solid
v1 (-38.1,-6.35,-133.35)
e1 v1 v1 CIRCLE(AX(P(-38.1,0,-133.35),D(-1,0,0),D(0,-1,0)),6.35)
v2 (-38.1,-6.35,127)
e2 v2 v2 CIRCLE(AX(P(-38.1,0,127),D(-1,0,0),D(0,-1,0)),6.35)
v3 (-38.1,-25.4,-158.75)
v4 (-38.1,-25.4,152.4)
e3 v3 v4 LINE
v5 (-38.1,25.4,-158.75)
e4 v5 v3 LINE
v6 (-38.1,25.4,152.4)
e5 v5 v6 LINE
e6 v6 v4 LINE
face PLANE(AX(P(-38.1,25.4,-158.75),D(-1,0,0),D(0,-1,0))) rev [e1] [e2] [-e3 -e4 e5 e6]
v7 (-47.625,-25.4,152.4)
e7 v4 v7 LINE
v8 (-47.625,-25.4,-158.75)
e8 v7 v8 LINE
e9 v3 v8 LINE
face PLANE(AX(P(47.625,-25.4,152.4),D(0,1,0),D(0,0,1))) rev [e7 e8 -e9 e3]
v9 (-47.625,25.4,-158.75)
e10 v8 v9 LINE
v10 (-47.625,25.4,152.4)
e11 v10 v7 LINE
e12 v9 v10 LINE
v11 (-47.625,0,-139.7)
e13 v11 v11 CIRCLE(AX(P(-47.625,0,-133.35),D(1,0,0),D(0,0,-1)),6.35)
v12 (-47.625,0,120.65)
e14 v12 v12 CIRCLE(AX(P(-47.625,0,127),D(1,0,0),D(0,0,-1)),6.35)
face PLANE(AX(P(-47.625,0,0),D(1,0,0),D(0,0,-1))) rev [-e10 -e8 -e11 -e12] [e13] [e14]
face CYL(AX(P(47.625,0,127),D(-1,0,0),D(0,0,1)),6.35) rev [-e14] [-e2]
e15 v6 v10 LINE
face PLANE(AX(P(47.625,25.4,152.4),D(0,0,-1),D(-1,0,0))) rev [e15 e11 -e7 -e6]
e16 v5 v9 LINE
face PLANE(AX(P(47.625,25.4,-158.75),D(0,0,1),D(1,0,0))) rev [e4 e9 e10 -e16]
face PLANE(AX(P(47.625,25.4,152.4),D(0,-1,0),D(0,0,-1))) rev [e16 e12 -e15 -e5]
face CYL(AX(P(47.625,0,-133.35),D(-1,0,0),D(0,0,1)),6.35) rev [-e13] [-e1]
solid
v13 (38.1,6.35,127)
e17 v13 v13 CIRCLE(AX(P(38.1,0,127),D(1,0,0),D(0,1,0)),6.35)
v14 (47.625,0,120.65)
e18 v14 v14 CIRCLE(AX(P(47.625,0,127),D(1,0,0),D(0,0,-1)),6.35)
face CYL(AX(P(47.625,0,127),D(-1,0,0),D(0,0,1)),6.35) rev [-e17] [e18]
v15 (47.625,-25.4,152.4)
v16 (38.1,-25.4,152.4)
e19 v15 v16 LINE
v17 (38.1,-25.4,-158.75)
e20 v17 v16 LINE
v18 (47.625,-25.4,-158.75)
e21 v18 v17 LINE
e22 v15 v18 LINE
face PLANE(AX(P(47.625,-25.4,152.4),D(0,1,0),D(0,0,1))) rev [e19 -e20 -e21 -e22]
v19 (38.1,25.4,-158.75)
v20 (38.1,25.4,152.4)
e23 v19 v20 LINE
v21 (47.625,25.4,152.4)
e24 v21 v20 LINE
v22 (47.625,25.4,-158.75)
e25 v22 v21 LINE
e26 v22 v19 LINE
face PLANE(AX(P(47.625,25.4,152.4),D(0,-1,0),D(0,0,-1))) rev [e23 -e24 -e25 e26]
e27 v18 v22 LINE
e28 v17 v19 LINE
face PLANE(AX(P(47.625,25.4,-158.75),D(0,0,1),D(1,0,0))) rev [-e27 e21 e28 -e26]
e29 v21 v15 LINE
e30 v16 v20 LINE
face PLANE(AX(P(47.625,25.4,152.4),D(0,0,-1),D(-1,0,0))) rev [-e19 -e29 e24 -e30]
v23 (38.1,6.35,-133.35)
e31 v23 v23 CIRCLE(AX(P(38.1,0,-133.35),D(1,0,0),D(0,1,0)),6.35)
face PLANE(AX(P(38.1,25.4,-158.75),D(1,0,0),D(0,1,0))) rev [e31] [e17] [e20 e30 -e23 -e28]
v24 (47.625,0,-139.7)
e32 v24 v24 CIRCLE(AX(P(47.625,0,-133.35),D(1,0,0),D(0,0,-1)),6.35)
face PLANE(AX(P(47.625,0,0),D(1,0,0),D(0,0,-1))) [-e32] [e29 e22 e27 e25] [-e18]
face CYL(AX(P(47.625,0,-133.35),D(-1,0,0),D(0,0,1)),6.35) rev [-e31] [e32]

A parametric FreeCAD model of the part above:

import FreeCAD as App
import Part
import Sketcher
Q = App.Units.Quantity


def add_polygon(sketch, points):
    """Adds a closed chain of lines whose ends are joined by coincident constraints."""
    first, n = sketch.GeometryCount, len(points)
    for a, b in zip(points, points[1:] + points[:1]):
        sketch.addGeometry(Part.LineSegment(App.Vector(*a, 0), App.Vector(*b, 0)), False)
    for i in range(n):
        sketch.addConstraint(Sketcher.Constraint("Coincident", first + i, 2, first + (i + 1) % n, 1))

doc = App.newDocument("Part")
body = doc.addObject("PartDesign::Body", "Body")
body.AllowCompound = True

# Sketch on YZ plane
sketch1 = body.newObject("Sketcher::SketchObject", "Sketch")
sketch1.AttachmentSupport = (doc.getObject("YZ_Plane"), [""])
sketch1.MapMode = "FlatFace"
add_polygon(sketch1, [(25.4, 152.4), (-25.4, 152.4), (-25.4, -158.75), (25.4, -158.75)])  # lines 0-3
sketch1.addGeometry(Part.Circle(App.Vector(0, 127, 0), App.Vector(0, 0, 1), 6.35), False)  # 4
sketch1.addGeometry(Part.Circle(App.Vector(0, -133.35, 0), App.Vector(0, 0, 1), 6.35), False)  # 5
sketch1.addConstraint(Sketcher.Constraint("Horizontal", 0))
sketch1.addConstraint(Sketcher.Constraint("Vertical", 1))
sketch1.addConstraint(Sketcher.Constraint("Horizontal", 2))
sketch1.addConstraint(Sketcher.Constraint("Vertical", 3))
sketch1.addConstraint(Sketcher.Constraint("Equal", 4, 5))
sketch1.addConstraint(Sketcher.Constraint("PointOnObject", 4, 3, -2))
sketch1.addConstraint(Sketcher.Constraint("PointOnObject", 5, 3, -2))
sketch1.addConstraint(Sketcher.Constraint("Diameter", 4, Q("0.5 in")))
sketch1.addConstraint(Sketcher.Constraint("DistanceX", 0, 2, 0, 1, Q("2 in")))
sketch1.addConstraint(Sketcher.Constraint("DistanceY", -1, 1, 4, 3, Q("5 in")))
sketch1.addConstraint(Sketcher.Constraint("DistanceX", 0, 2, -1, 1, Q("1 in")))
sketch1.addConstraint(Sketcher.Constraint("DistanceY", -1, 1, 0, 2, Q("6 in")))
sketch1.addConstraint(Sketcher.Constraint("DistanceY", 1, 2, 5, 3, Q("1 in")))
sketch1.addConstraint(Sketcher.Constraint("DistanceY", 1, 2, 1, 1, Q("12.25 in")))
pad1 = body.newObject("PartDesign::Pad", "Pad")
pad1.Profile = sketch1
pad1.Length = Q("3.75 in")
pad1.Midplane = True

# Sketch on XY plane
sketch2 = body.newObject("Sketcher::SketchObject", "Sketch001")
sketch2.AttachmentSupport = (doc.getObject("XY_Plane"), [""])
sketch2.MapMode = "FlatFace"
sketch2.AttachmentOffset = App.Placement(App.Vector(0, 0, 6 * 25.4), App.Rotation())
add_polygon(sketch2, [(-38.1, 25.4), (-38.1, -25.4), (38.1, -25.4), (38.1, 25.4)])  # lines 0-3
sketch2.addConstraint(Sketcher.Constraint("Vertical", 0))
sketch2.addConstraint(Sketcher.Constraint("Horizontal", 1))
sketch2.addConstraint(Sketcher.Constraint("Vertical", 2))
sketch2.addConstraint(Sketcher.Constraint("Horizontal", 3))
sketch2.addConstraint(Sketcher.Constraint("Symmetric", 0, 2, 2, 2, -1, 1))
sketch2.addConstraint(Sketcher.Constraint("DistanceX", 1, 1, 1, 2, Q("3 in")))
sketch2.addConstraint(Sketcher.Constraint("DistanceY", 0, 2, 0, 1, Q("2 in")))
pocket1 = body.newObject("PartDesign::Pocket", "Pocket")
pocket1.Profile = sketch2
pocket1.Length = Q("12.25 in")

doc.recompute()
